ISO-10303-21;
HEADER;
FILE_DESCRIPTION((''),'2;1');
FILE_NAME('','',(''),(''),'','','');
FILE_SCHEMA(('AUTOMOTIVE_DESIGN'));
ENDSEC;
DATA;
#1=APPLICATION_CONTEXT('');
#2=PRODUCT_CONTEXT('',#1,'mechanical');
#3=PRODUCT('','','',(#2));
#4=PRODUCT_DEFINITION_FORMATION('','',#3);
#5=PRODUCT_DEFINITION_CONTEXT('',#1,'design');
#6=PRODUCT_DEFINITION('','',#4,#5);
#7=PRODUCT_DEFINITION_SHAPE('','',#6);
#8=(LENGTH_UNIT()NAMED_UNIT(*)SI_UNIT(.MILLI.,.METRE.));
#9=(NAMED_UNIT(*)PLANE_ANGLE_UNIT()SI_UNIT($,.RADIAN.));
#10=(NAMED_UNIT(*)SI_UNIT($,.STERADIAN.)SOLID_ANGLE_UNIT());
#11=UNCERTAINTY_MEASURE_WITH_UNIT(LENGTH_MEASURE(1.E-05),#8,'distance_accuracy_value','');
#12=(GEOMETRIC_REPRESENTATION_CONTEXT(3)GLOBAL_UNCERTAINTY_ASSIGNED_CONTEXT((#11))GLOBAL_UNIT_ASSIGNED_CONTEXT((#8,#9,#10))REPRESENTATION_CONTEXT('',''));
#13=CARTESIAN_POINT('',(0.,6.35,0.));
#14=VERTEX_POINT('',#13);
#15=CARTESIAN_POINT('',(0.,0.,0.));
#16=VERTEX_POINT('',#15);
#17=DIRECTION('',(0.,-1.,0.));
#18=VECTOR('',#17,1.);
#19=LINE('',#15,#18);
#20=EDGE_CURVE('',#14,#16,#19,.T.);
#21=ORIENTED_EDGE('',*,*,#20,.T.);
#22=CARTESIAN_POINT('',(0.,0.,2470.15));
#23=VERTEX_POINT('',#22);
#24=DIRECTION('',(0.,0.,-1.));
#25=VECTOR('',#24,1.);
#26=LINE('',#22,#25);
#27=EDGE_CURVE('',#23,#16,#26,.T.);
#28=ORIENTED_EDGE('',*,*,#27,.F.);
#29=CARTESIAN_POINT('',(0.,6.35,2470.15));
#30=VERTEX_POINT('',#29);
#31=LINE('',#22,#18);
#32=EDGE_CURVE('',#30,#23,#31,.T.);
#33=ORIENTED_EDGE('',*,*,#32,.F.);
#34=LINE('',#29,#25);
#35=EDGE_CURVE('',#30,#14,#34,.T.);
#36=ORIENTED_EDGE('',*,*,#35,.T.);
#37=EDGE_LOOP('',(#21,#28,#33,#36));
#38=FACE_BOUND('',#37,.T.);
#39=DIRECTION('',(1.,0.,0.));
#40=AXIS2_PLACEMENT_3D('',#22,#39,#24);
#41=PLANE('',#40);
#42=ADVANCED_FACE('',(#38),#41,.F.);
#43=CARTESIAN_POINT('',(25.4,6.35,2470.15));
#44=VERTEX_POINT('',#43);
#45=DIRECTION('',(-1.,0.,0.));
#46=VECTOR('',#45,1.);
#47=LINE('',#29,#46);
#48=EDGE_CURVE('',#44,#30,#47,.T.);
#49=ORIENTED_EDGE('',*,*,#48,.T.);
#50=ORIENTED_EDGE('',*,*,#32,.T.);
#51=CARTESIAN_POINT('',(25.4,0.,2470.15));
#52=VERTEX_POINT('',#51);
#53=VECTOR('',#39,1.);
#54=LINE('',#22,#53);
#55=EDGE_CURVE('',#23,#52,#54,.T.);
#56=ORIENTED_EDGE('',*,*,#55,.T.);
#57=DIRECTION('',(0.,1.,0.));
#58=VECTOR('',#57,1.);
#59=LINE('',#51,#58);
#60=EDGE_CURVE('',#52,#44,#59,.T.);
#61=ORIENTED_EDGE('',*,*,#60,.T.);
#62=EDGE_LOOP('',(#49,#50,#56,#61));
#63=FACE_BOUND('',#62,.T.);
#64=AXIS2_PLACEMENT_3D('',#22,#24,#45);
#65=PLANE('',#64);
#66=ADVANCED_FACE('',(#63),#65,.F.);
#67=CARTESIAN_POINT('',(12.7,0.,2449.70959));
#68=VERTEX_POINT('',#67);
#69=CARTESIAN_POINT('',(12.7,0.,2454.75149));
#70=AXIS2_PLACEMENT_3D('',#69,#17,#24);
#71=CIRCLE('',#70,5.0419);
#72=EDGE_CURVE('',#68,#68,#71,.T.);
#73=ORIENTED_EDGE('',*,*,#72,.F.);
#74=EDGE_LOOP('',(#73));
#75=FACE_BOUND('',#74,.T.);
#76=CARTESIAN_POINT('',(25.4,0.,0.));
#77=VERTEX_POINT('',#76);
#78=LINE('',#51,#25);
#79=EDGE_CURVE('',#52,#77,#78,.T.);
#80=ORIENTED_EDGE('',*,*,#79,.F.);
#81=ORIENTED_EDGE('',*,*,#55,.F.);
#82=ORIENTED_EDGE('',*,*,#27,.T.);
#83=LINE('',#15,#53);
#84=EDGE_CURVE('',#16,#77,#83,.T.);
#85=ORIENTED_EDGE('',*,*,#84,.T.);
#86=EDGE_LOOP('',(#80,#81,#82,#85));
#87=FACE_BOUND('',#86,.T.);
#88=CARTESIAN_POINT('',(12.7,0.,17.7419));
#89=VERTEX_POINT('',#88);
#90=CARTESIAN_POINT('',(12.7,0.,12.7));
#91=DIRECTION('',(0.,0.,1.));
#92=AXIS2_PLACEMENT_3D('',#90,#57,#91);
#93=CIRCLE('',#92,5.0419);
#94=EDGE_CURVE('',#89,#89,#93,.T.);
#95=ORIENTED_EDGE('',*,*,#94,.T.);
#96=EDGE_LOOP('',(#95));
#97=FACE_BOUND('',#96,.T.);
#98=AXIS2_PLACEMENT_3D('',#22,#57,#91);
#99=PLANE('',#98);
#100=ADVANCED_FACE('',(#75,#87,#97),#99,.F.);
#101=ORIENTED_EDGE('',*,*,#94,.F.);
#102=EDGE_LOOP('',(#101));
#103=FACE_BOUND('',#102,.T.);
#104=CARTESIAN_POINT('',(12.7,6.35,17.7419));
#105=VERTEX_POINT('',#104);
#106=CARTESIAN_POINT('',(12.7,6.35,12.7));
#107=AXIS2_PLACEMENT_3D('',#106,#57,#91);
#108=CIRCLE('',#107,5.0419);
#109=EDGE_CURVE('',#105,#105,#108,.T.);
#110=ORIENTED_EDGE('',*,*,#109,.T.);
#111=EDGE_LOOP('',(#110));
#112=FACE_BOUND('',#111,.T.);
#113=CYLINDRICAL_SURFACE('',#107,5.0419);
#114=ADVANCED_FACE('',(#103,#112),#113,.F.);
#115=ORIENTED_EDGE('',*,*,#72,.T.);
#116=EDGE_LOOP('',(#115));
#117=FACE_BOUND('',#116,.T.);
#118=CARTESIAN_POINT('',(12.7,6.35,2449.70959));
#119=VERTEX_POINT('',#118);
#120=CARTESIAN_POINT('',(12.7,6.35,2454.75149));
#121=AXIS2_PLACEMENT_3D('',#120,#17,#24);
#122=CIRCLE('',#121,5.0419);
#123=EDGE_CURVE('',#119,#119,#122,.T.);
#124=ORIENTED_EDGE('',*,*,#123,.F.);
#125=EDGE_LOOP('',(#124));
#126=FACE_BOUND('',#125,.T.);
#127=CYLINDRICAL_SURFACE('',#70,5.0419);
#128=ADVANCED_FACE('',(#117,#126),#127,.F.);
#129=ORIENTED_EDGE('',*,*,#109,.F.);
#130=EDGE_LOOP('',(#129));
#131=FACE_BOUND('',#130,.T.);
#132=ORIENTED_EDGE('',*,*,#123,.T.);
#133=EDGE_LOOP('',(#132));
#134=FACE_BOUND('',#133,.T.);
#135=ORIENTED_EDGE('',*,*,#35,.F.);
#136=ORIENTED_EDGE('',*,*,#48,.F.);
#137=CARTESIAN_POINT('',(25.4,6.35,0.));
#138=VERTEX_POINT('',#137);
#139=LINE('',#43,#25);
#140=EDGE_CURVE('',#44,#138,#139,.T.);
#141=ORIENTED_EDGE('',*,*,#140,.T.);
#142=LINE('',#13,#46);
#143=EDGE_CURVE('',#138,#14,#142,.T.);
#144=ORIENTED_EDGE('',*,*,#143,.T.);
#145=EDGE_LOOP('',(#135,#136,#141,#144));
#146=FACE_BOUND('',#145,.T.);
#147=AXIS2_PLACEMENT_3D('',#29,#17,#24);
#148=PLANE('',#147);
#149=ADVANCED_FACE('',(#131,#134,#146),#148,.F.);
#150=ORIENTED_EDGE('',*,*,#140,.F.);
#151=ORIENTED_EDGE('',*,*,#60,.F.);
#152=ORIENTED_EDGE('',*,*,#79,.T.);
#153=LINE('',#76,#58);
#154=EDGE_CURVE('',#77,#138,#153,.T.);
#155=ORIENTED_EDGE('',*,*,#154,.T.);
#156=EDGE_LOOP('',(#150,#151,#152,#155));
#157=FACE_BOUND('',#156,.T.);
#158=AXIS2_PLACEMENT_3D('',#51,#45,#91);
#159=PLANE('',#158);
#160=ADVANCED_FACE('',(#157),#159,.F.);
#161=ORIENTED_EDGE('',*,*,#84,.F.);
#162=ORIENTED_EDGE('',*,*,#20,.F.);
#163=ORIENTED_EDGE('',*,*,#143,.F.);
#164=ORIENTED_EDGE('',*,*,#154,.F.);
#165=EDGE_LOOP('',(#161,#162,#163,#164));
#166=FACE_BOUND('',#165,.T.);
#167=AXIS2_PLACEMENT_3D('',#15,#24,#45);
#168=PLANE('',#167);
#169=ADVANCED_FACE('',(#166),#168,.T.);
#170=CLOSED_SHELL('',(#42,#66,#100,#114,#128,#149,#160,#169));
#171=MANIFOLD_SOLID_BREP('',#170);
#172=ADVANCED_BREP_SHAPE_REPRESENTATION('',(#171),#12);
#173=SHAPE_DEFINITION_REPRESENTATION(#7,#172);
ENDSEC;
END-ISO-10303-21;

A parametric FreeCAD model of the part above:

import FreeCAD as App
import Part
import Sketcher
Q = App.Units.Quantity


def add_polygon(sketch, points):
    """Adds a closed chain of lines whose ends are joined by coincident constraints."""
    first, n = sketch.GeometryCount, len(points)
    for a, b in zip(points, points[1:] + points[:1]):
        sketch.addGeometry(Part.LineSegment(App.Vector(*a, 0), App.Vector(*b, 0)), False)
    for i in range(n):
        sketch.addConstraint(Sketcher.Constraint("Coincident", first + i, 2, first + (i + 1) % n, 1))

doc = App.newDocument("Part")
body = doc.addObject("PartDesign::Body", "Body")

sketch1 = body.newObject("Sketcher::SketchObject", "Sketch")
sketch1.AttachmentSupport = (doc.getObject("XY_Plane"), [""])
sketch1.MapMode = "FlatFace"
add_polygon(sketch1, [(0, 6), (0, 0), (25, 0), (25, 6)])
sketch1.addConstraint([
    Sketcher.Constraint("Vertical", 0),
    Sketcher.Constraint("Horizontal", 1),
    Sketcher.Constraint("Vertical", 2),
    Sketcher.Constraint("Horizontal", 3),
    Sketcher.Constraint("Coincident", 0, 2, -1, 1),
    Sketcher.Constraint("DistanceX", 1, 1, 1, 2, Q("1 in")),
    Sketcher.Constraint("DistanceY", 0, 2, 0, 1, Q("0.25 in")),
])
pad1 = body.newObject("PartDesign::Pad", "Pad")
pad1.Profile = sketch1
pad1.Length = Q("97.25 in")

sketch2 = body.newObject("Sketcher::SketchObject", "Sketch001")
sketch2.AttachmentSupport = (doc.getObject("XZ_Plane"), [""])
sketch2.MapMode = "FlatFace"
sketch2.AttachmentOffset = App.Placement(App.Vector(0, 0, -0.25 * 25.4), App.Rotation())
sketch2.addGeometry(Part.Circle(App.Vector(13, 13, 0), App.Vector(0, 0, 1), 5), False)
sketch2.addConstraint([
    Sketcher.Constraint("Diameter", 0, Q("0.397 in")),
    Sketcher.Constraint("DistanceX", -1, 1, 0, 3, Q("0.5 in")),
    Sketcher.Constraint("DistanceY", -1, 1, 0, 3, Q("0.5 in")),
])
doc.recompute()
hole = body.newObject("PartDesign::Hole", "Hole")
hole.Profile = sketch2
hole.ThreadType = "None"
hole.Diameter = Q("0.397 in")
hole.DepthType = "ThroughAll"
hole.Reversed = True

sketch3 = body.newObject("Sketcher::SketchObject", "Sketch002")
sketch3.AttachmentSupport = (doc.getObject("XZ_Plane"), [""])
sketch3.MapMode = "FlatFace"
sketch3.addGeometry(Part.Circle(App.Vector(13, 2455, 0), App.Vector(0, 0, 1), 5), False)
sketch3.addConstraint([
    Sketcher.Constraint("Diameter", 0, Q("0.397 in")),
    Sketcher.Constraint("DistanceX", -1, 1, 0, 3, Q("0.5 in")),
    Sketcher.Constraint("DistanceY", -1, 1, 0, 3, Q("2454.75149 mm")),
])
doc.recompute()
hole2 = body.newObject("PartDesign::Hole", "Hole001")
hole2.Profile = sketch3
hole2.ThreadType = "None"
hole2.Diameter = Q("0.397 in")
hole2.DepthType = "ThroughAll"

doc.recompute()
